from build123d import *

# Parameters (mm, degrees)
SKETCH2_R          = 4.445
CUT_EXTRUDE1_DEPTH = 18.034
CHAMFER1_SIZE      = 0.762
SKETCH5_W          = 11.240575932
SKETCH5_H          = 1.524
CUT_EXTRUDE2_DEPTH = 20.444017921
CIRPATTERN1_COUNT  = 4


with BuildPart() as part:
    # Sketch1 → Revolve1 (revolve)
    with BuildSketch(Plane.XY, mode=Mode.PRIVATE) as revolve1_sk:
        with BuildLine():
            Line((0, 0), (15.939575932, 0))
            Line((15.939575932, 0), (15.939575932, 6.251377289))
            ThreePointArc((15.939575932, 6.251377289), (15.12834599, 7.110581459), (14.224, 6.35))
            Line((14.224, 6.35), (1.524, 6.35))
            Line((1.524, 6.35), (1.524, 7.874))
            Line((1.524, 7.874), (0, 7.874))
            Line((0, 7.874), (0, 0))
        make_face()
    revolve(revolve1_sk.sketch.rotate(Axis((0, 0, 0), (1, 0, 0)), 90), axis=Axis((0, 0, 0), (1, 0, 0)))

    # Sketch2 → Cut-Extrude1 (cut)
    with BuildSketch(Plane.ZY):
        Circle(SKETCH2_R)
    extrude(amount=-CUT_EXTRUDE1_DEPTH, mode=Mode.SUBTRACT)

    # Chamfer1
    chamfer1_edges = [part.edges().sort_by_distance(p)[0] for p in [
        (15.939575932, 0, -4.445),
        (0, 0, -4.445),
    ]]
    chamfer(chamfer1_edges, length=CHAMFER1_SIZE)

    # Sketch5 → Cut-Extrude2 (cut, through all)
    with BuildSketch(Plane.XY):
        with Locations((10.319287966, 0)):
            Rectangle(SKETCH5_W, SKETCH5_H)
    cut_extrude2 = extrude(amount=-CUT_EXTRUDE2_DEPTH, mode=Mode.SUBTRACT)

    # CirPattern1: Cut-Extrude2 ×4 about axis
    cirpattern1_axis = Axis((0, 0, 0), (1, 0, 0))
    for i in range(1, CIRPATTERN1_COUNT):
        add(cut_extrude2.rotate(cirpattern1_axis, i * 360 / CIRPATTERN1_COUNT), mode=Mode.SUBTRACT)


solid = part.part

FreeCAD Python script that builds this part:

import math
import FreeCAD as App
import Part
import Sketcher
from FreeCAD import Vector
Q = App.Units.Quantity


def edges_at(feature, points):
    """Names of the edges that pass closest to the given points."""
    edges = feature.Shape.Edges
    near = lambda p: min(range(len(edges)), key=lambda i: edges[i].distToShape(Part.Vertex(*p))[0])
    return sorted({f"Edge{near(p) + 1}" for p in points})


def add_polygon(sketch, points):
    """Adds a closed chain of lines whose ends are joined by coincident constraints."""
    first, n = sketch.GeometryCount, len(points)
    for a, b in zip(points, points[1:] + points[:1]):
        sketch.addGeometry(Part.LineSegment(App.Vector(*a, 0), App.Vector(*b, 0)), False)
    for i in range(n):
        sketch.addConstraint(Sketcher.Constraint("Coincident", first + i, 2, first + (i + 1) % n, 1))

doc = App.newDocument("Part")
body = doc.addObject("PartDesign::Body", "Body")

sketch1 = body.newObject("Sketcher::SketchObject", "Sketch")
sketch1.AttachmentSupport = (doc.getObject("XY_Plane"), [""])
sketch1.MapMode = "FlatFace"
sketch1.addGeometry(Part.LineSegment(Vector(0, 0, 0), Vector(15.9, 0, 0)), False)
sketch1.addGeometry(Part.LineSegment(Vector(15.9, 0, 0), Vector(15.9, 6.3, 0)), False)
sketch1.addGeometry(Part.ArcOfCircle(Part.Circle(Vector(15.1, 6.3, 0), Vector(0, 0, 1), 0.9), math.radians(0), math.radians(173)), False)
sketch1.addGeometry(Part.LineSegment(Vector(14.2, 6.3, 0), Vector(1.5, 6.3, 0)), False)
sketch1.addGeometry(Part.LineSegment(Vector(1.5, 6.3, 0), Vector(1.5, 7.9, 0)), False)
sketch1.addGeometry(Part.LineSegment(Vector(1.5, 7.9, 0), Vector(0, 7.9, 0)), False)
sketch1.addGeometry(Part.LineSegment(Vector(0, 7.9, 0), Vector(0, 0, 0)), False)
sketch1.addConstraint(Sketcher.Constraint("Coincident", 0, 2, 1, 1))
sketch1.addConstraint(Sketcher.Constraint("Tangent", 1, 2, 2, 1))
sketch1.addConstraint(Sketcher.Constraint("Coincident", 2, 2, 3, 1))
sketch1.addConstraint(Sketcher.Constraint("Coincident", 3, 2, 4, 1))
sketch1.addConstraint(Sketcher.Constraint("Coincident", 4, 2, 5, 1))
sketch1.addConstraint(Sketcher.Constraint("Coincident", 5, 2, 6, 1))
sketch1.addConstraint(Sketcher.Constraint("Coincident", 6, 2, 0, 1))
sketch1.addConstraint(Sketcher.Constraint("Horizontal", 0))
sketch1.addConstraint(Sketcher.Constraint("Vertical", 1))
sketch1.addConstraint(Sketcher.Constraint("Horizontal", 3))
sketch1.addConstraint(Sketcher.Constraint("Vertical", 4))
sketch1.addConstraint(Sketcher.Constraint("Horizontal", 5))
sketch1.addConstraint(Sketcher.Constraint("Vertical", 6))
sketch1.addConstraint(Sketcher.Constraint("Coincident", 6, 2, -1, 1))
sketch1.addConstraint(Sketcher.Constraint("Equal", 5, 4))
sketch1.addConstraint(Sketcher.Constraint("DistanceX", 3, 2, 3, 1, Q("0.5 in")))
sketch1.addConstraint(Sketcher.Constraint("DistanceX", 5, 2, 5, 1, Q("0.06 in")))
sketch1.addConstraint(Sketcher.Constraint("DistanceY", 6, 2, 6, 1, Q("0.31 in")))
sketch1.addConstraint(Sketcher.Constraint("Radius", 2, 0.860623))
sketch1.addConstraint(Sketcher.Constraint("DistanceX", 0, 1, 0, 2, 15.939576))
revolution = body.newObject("PartDesign::Revolution", "Revolution")
revolution.Profile = sketch1
revolution.ReferenceAxis = (sketch1, ["H_Axis"])
revolution.Angle = 360

sketch2 = body.newObject("Sketcher::SketchObject", "Sketch001")
sketch2.AttachmentSupport = (doc.getObject("YZ_Plane"), [""])
sketch2.MapMode = "FlatFace"
sketch2.addGeometry(Part.Circle(Vector(0, 0, 0), Vector(0, 0, 1), 4.4), False)
sketch2.addConstraint(Sketcher.Constraint("Coincident", 0, 3, -1, 1))
sketch2.addConstraint(Sketcher.Constraint("Diameter", 0, Q("0.35 in")))
pocket1 = body.newObject("PartDesign::Pocket", "Pocket")
pocket1.Profile = sketch2
pocket1.Length = Q("0.71 in")
pocket1.Reversed = True
doc.recompute()

chamfer = body.newObject("PartDesign::Chamfer", "Chamfer")
chamfer.Base = (pocket1, edges_at(pocket1, [(15.94, 0, -4.445), (0, 0, -4.445)]))
chamfer.Size = Q("0.03 in")

sketch3 = body.newObject("Sketcher::SketchObject", "Sketch002")
sketch3.AttachmentSupport = (doc.getObject("XY_Plane"), [""])
sketch3.MapMode = "FlatFace"
add_polygon(sketch3, [(4.7, 0.8), (4.7, -0.8), (15.9, -0.8), (15.9, 0.8)])
sketch3.addConstraint(Sketcher.Constraint("Vertical", 0))
sketch3.addConstraint(Sketcher.Constraint("Horizontal", 1))
sketch3.addConstraint(Sketcher.Constraint("Vertical", 2))
sketch3.addConstraint(Sketcher.Constraint("Horizontal", 3))
sketch3.addConstraint(Sketcher.Constraint("DistanceY", 0, 2, 0, 1, Q("0.06 in")))
sketch3.addConstraint(Sketcher.Constraint("DistanceY", 0, 2, -1, 1, Q("0.03 in")))
sketch3.addConstraint(Sketcher.Constraint("DistanceX", -1, 1, 0, 2, Q("0.185 in")))
sketch3.addConstraint(Sketcher.Constraint("DistanceX", 1, 1, 1, 2, 11.240576))
pocket2 = body.newObject("PartDesign::Pocket", "Pocket001")
pocket2.Profile = sketch3
pocket2.Type = "ThroughAll"
doc.recompute()

polarpattern = body.newObject("PartDesign::PolarPattern", "PolarPattern")
polarpattern.Originals = [pocket2]
polarpattern.Axis = (doc.getObject("X_Axis"), [""])
polarpattern.Angle = 360
polarpattern.Occurrences = 4
body.Tip = polarpattern

doc.recompute()
